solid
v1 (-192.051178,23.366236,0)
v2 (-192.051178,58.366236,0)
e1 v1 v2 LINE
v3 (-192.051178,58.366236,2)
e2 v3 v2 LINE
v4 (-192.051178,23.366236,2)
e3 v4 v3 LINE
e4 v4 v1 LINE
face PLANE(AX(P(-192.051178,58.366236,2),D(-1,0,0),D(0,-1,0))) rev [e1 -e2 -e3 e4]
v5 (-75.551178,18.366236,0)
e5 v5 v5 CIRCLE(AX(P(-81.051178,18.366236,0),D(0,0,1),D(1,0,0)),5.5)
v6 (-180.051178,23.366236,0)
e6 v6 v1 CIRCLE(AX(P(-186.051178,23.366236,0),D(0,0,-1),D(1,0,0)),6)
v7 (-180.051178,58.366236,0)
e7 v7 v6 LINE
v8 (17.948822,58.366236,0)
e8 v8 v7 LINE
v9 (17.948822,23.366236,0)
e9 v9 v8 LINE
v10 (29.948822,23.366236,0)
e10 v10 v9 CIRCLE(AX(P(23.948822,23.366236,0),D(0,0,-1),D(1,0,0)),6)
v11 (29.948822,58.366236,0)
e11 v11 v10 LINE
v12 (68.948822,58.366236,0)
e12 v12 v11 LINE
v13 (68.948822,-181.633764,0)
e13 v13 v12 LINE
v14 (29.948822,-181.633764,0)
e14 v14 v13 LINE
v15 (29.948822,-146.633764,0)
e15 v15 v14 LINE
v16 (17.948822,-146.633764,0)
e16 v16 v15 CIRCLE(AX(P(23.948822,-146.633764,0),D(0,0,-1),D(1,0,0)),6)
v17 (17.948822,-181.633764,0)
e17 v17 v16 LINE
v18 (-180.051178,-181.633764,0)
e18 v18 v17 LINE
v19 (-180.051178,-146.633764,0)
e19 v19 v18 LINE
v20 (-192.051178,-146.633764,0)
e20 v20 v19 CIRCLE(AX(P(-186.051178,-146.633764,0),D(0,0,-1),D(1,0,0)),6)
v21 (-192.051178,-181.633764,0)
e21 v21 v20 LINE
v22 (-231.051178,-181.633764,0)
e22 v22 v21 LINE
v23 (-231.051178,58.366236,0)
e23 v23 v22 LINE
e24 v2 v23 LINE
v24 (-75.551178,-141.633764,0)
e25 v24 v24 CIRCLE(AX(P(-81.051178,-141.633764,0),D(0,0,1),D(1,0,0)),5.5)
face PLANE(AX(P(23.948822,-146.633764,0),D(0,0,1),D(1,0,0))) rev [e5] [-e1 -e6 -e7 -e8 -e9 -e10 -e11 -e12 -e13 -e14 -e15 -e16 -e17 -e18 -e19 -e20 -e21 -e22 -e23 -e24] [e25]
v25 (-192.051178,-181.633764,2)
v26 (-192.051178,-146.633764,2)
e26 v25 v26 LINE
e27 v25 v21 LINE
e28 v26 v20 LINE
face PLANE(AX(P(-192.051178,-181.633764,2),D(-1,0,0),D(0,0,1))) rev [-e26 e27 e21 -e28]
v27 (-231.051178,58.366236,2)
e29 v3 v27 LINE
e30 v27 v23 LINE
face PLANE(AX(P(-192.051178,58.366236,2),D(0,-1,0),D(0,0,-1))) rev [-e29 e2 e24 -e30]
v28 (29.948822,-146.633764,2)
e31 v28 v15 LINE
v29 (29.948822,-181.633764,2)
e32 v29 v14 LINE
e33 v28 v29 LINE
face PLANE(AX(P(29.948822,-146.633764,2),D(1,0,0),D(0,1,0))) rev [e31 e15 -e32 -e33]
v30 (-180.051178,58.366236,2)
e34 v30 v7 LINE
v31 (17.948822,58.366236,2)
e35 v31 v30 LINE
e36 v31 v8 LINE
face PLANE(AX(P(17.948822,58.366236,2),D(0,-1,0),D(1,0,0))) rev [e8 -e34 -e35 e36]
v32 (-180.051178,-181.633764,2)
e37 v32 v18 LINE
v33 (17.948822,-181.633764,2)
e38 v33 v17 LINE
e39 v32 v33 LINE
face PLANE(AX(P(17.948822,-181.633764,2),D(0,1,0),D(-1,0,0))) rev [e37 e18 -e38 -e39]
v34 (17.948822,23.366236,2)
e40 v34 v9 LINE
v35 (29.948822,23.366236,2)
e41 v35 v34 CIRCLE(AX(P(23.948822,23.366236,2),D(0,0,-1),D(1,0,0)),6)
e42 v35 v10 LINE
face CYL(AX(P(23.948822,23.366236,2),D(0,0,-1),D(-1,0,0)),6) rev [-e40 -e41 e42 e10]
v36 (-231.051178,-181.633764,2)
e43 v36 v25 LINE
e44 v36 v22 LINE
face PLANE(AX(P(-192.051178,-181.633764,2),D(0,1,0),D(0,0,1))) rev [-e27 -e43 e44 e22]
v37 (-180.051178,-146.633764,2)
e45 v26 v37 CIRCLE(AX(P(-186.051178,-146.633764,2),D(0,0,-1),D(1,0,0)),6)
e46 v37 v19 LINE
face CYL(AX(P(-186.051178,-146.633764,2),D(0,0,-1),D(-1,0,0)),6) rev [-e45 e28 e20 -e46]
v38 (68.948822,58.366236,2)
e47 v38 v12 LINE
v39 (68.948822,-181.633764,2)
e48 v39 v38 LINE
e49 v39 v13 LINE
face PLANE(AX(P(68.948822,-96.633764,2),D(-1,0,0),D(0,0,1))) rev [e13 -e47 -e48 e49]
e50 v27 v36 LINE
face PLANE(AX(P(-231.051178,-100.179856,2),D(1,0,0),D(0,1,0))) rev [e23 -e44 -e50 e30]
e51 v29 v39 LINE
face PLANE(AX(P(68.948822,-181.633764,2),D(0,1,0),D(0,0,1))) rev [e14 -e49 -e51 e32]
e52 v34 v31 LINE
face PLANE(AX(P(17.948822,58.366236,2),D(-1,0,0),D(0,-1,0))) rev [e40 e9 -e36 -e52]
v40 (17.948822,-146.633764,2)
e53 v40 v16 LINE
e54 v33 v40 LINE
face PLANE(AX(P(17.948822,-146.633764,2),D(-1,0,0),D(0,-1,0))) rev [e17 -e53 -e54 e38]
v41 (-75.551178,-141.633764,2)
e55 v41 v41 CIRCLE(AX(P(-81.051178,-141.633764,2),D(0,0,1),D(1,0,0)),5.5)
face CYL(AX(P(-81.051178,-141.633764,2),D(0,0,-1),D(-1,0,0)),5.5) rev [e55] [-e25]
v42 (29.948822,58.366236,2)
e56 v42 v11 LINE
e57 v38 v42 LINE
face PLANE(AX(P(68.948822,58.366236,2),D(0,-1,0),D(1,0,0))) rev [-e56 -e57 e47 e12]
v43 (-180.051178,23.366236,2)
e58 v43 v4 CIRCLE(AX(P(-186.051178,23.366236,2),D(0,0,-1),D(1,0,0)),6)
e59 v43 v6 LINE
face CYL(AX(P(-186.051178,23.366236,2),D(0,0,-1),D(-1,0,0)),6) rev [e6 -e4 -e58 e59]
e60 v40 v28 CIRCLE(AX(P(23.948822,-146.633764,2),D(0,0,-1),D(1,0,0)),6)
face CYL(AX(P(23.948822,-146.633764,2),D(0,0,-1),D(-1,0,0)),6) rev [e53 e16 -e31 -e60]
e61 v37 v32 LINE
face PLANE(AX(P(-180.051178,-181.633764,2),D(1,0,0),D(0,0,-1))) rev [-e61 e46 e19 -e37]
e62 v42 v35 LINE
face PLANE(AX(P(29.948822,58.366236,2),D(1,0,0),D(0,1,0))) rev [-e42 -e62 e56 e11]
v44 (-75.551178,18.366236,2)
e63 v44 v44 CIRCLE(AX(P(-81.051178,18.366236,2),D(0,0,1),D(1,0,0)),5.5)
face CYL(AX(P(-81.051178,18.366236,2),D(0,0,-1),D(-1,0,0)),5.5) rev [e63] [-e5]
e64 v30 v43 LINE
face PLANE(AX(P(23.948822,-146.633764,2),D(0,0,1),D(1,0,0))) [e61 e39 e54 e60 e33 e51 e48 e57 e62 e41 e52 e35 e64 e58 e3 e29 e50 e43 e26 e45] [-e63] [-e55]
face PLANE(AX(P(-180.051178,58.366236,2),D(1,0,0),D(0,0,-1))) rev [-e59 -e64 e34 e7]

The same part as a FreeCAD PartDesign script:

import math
import FreeCAD as App
import Part
import Sketcher
from FreeCAD import Vector

doc = App.newDocument("Part")
params = doc.addObject("Spreadsheet::Sheet", "Params")
for row, (alias, value) in enumerate([
    ("sketch1_diameter", "11 mm"),
    ("sketch1_radius", "6 mm"),
    ("sketch1_diameter2", "6.5 mm"),
    ("sketch1_width", "30 mm"),
    ("sketch1_width2", "39 mm"),
    ("pad1_length", "2 mm"),
    ("sketch2_width", "30 mm"),
    ("sketch2_height", "70 mm"),
    ("sketch3_width", "30 mm"),
    ("sketch3_height", "70 mm"),
], start=1):
    params.set(f"A{row}", alias)
    params.set(f"B{row}", "=" + value)
    params.setAlias(f"B{row}", alias)

body = doc.addObject("PartDesign::Body", "Body")

# Sketch on XY plane
sketch1 = body.newObject("Sketcher::SketchObject", "Sketch")
sketch1.AttachmentSupport = (doc.getObject("XY_Plane"), [""])
sketch1.MapMode = "FlatFace"
sketch1.addGeometry(Part.LineSegment(Vector(98.9, -26.6, 0), Vector(68.9, -26.6, 0)), False)
sketch1.addGeometry(Part.LineSegment(Vector(68.9, -26.6, 0), Vector(68.9, 58.4, 0)), False)
sketch1.addGeometry(Part.LineSegment(Vector(68.9, 58.4, 0), Vector(29.9, 58.4, 0)), False)
sketch1.addGeometry(Part.LineSegment(Vector(29.9, 58.4, 0), Vector(29.9, 23.4, 0)), False)
sketch1.addGeometry(Part.ArcOfCircle(Part.Circle(Vector(23.9, 23.4, 0), Vector(0, 0, 1), 6), math.radians(180), math.radians(360)), False)
sketch1.addGeometry(Part.LineSegment(Vector(17.9, 23.4, 0), Vector(17.9, 58.4, 0)), False)
sketch1.addGeometry(Part.LineSegment(Vector(17.9, 58.4, 0), Vector(-180.1, 58.4, 0)), False)
sketch1.addGeometry(Part.LineSegment(Vector(-180.1, 58.4, 0), Vector(-180.1, 23.4, 0)), False)
sketch1.addGeometry(Part.ArcOfCircle(Part.Circle(Vector(-186.1, 23.4, 0), Vector(0, 0, 1), 6), math.radians(180), math.radians(360)), False)
sketch1.addGeometry(Part.LineSegment(Vector(-192.1, 23.4, 0), Vector(-192.1, 58.4, 0)), False)
sketch1.addGeometry(Part.LineSegment(Vector(-192.1, 58.4, 0), Vector(-231.1, 58.4, 0)), False)
sketch1.addGeometry(Part.LineSegment(Vector(-231.1, 58.4, 0), Vector(-231.1, -30.2, 0)), False)
sketch1.addGeometry(Part.LineSegment(Vector(-231.1, -30.2, 0), Vector(-261.1, -30.2, 0)), False)
sketch1.addGeometry(Part.LineSegment(Vector(-261.1, -30.2, 0), Vector(-261.1, -100.2, 0)), False)
sketch1.addGeometry(Part.LineSegment(Vector(-261.1, -100.2, 0), Vector(-231.1, -100.2, 0)), False)
sketch1.addGeometry(Part.LineSegment(Vector(-231.1, -100.2, 0), Vector(-231.1, -181.6, 0)), False)
sketch1.addGeometry(Part.LineSegment(Vector(-231.1, -181.6, 0), Vector(-192.1, -181.6, 0)), False)
sketch1.addGeometry(Part.LineSegment(Vector(-192.1, -181.6, 0), Vector(-192.1, -146.6, 0)), False)
sketch1.addGeometry(Part.ArcOfCircle(Part.Circle(Vector(-186.1, -146.6, 0), Vector(0, 0, 1), 6), math.radians(0), math.radians(180)), False)
sketch1.addGeometry(Part.LineSegment(Vector(-180.1, -146.6, 0), Vector(-180.1, -181.6, 0)), False)
sketch1.addGeometry(Part.LineSegment(Vector(-180.1, -181.6, 0), Vector(17.9, -181.6, 0)), False)
sketch1.addGeometry(Part.LineSegment(Vector(17.9, -181.6, 0), Vector(17.9, -146.6, 0)), False)
sketch1.addGeometry(Part.ArcOfCircle(Part.Circle(Vector(23.9, -146.6, 0), Vector(0, 0, 1), 6), math.radians(0), math.radians(180)), False)
sketch1.addGeometry(Part.LineSegment(Vector(29.9, -146.6, 0), Vector(29.9, -181.6, 0)), False)
sketch1.addGeometry(Part.LineSegment(Vector(29.9, -181.6, 0), Vector(68.9, -181.6, 0)), False)
sketch1.addGeometry(Part.LineSegment(Vector(68.9, -181.6, 0), Vector(68.9, -96.6, 0)), False)
sketch1.addGeometry(Part.LineSegment(Vector(68.9, -96.6, 0), Vector(98.9, -96.6, 0)), False)
sketch1.addGeometry(Part.LineSegment(Vector(98.9, -96.6, 0), Vector(98.9, -26.6, 0)), False)
sketch1.addGeometry(Part.Circle(Vector(-81.1, -141.6, 0), Vector(0, 0, 1), 5.5), False)
sketch1.addGeometry(Part.Circle(Vector(-246.1, -65.2, 0), Vector(0, 0, 1), 3.2), False)
sketch1.addGeometry(Part.Circle(Vector(83.9, -61.6, 0), Vector(0, 0, 1), 3.2), False)
sketch1.addGeometry(Part.Circle(Vector(-81.1, 18.4, 0), Vector(0, 0, 1), 5.5), False)
sketch1.addConstraint(Sketcher.Constraint("Coincident", 0, 2, 1, 1))
sketch1.addConstraint(Sketcher.Constraint("Coincident", 1, 2, 2, 1))
sketch1.addConstraint(Sketcher.Constraint("Coincident", 2, 2, 3, 1))
sketch1.addConstraint(Sketcher.Constraint("Tangent", 3, 2, 4, 2))
sketch1.addConstraint(Sketcher.Constraint("Tangent", 4, 1, 5, 1))
sketch1.addConstraint(Sketcher.Constraint("Coincident", 5, 2, 6, 1))
sketch1.addConstraint(Sketcher.Constraint("Coincident", 6, 2, 7, 1))
sketch1.addConstraint(Sketcher.Constraint("Tangent", 7, 2, 8, 2))
sketch1.addConstraint(Sketcher.Constraint("Tangent", 8, 1, 9, 1))
sketch1.addConstraint(Sketcher.Constraint("Coincident", 9, 2, 10, 1))
sketch1.addConstraint(Sketcher.Constraint("Coincident", 10, 2, 11, 1))
sketch1.addConstraint(Sketcher.Constraint("Coincident", 11, 2, 12, 1))
sketch1.addConstraint(Sketcher.Constraint("Coincident", 12, 2, 13, 1))
sketch1.addConstraint(Sketcher.Constraint("Coincident", 13, 2, 14, 1))
sketch1.addConstraint(Sketcher.Constraint("Coincident", 14, 2, 15, 1))
sketch1.addConstraint(Sketcher.Constraint("Coincident", 15, 2, 16, 1))
sketch1.addConstraint(Sketcher.Constraint("Coincident", 16, 2, 17, 1))
sketch1.addConstraint(Sketcher.Constraint("Tangent", 17, 2, 18, 2))
sketch1.addConstraint(Sketcher.Constraint("Tangent", 18, 1, 19, 1))
sketch1.addConstraint(Sketcher.Constraint("Coincident", 19, 2, 20, 1))
sketch1.addConstraint(Sketcher.Constraint("Coincident", 20, 2, 21, 1))
sketch1.addConstraint(Sketcher.Constraint("Tangent", 21, 2, 22, 2))
sketch1.addConstraint(Sketcher.Constraint("Tangent", 22, 1, 23, 1))
sketch1.addConstraint(Sketcher.Constraint("Coincident", 23, 2, 24, 1))
sketch1.addConstraint(Sketcher.Constraint("Coincident", 24, 2, 25, 1))
sketch1.addConstraint(Sketcher.Constraint("Coincident", 25, 2, 26, 1))
sketch1.addConstraint(Sketcher.Constraint("Coincident", 26, 2, 27, 1))
sketch1.addConstraint(Sketcher.Constraint("Coincident", 27, 2, 0, 1))
sketch1.addConstraint(Sketcher.Constraint("Horizontal", 0))
sketch1.addConstraint(Sketcher.Constraint("Vertical", 1))
sketch1.addConstraint(Sketcher.Constraint("Horizontal", 2))
sketch1.addConstraint(Sketcher.Constraint("Vertical", 3))
sketch1.addConstraint(Sketcher.Constraint("Vertical", 5))
sketch1.addConstraint(Sketcher.Constraint("Horizontal", 6))
sketch1.addConstraint(Sketcher.Constraint("Vertical", 7))
sketch1.addConstraint(Sketcher.Constraint("Vertical", 9))
sketch1.addConstraint(Sketcher.Constraint("Horizontal", 10))
sketch1.addConstraint(Sketcher.Constraint("Vertical", 11))
sketch1.addConstraint(Sketcher.Constraint("Horizontal", 12))
sketch1.addConstraint(Sketcher.Constraint("Vertical", 13))
sketch1.addConstraint(Sketcher.Constraint("Horizontal", 14))
sketch1.addConstraint(Sketcher.Constraint("Vertical", 15))
sketch1.addConstraint(Sketcher.Constraint("Horizontal", 16))
sketch1.addConstraint(Sketcher.Constraint("Vertical", 17))
sketch1.addConstraint(Sketcher.Constraint("Vertical", 19))
sketch1.addConstraint(Sketcher.Constraint("Horizontal", 20))
sketch1.addConstraint(Sketcher.Constraint("Vertical", 21))
sketch1.addConstraint(Sketcher.Constraint("Vertical", 23))
sketch1.addConstraint(Sketcher.Constraint("Horizontal", 24))
sketch1.addConstraint(Sketcher.Constraint("Vertical", 25))
sketch1.addConstraint(Sketcher.Constraint("Horizontal", 26))
sketch1.addConstraint(Sketcher.Constraint("Vertical", 27))
sketch1.addConstraint(Sketcher.Constraint("Equal", 4, 8))
sketch1.addConstraint(Sketcher.Constraint("Equal", 8, 18))
sketch1.addConstraint(Sketcher.Constraint("Equal", 18, 22))
sketch1.addConstraint(Sketcher.Constraint("Equal", 29, 30))
sketch1.addConstraint(Sketcher.Constraint("Equal", 28, 31))
sketch1.addConstraint(Sketcher.Constraint("Horizontal", 4, 3, 8, 3))
sketch1.addConstraint(Sketcher.Constraint("Horizontal", 18, 3, 22, 3))
sketch1.addConstraint(Sketcher.Constraint("Horizontal", 2, 2, 5, 2))
sketch1.addConstraint(Sketcher.Constraint("Horizontal", 6, 2, 9, 2))
sketch1.addConstraint(Sketcher.Constraint("Horizontal", 16, 2, 19, 2))
sketch1.addConstraint(Sketcher.Constraint("Horizontal", 20, 2, 23, 2))
sketch1.addConstraint(Sketcher.Constraint("Vertical", 8, 3, 18, 3))
sketch1.addConstraint(Sketcher.Constraint("Vertical", 4, 3, 22, 3))
sketch1.addConstraint(Sketcher.Constraint("Vertical", 28, 3, 31, 3))
sketch1.addConstraint(Sketcher.Constraint("Vertical", 11, 2, 14, 2))
sketch1.addConstraint(Sketcher.Constraint("Vertical", 1, 2, 24, 2))
sketch1.addConstraint(Sketcher.Constraint("Equal", 2, 10))
sketch1.addConstraint(Sketcher.Constraint("Equal", 0, 12))
sketch1.addConstraint(Sketcher.Constraint("Equal", 9, 17))
sketch1.addConstraint(Sketcher.Constraint("Equal", 1, 25))
sketch1.addConstraint(Sketcher.Constraint("Equal", 13, 27))
sketch1.addConstraint(Sketcher.Constraint("Diameter", 28, 11.0))
sketch1.addConstraint(Sketcher.Constraint("Radius", 4, 6.0))
sketch1.addConstraint(Sketcher.Constraint("Diameter", 29, 6.5))
sketch1.addConstraint(Sketcher.Constraint("DistanceX", 0, 2, 0, 1, 30.0))
sketch1.addConstraint(Sketcher.Constraint("DistanceX", 2, 2, 2, 1, 39.0))
sketch1.addConstraint(Sketcher.Constraint("DistanceX", 6, 2, 6, 1, 198.0))
sketch1.addConstraint(Sketcher.Constraint("DistanceY", 1, 1, 1, 2, 85.0))
sketch1.addConstraint(Sketcher.Constraint("DistanceY", 3, 2, 3, 1, 35.0))
sketch1.addConstraint(Sketcher.Constraint("DistanceY", 13, 2, 13, 1, 70.0))
sketch1.addConstraint(Sketcher.Constraint("DistanceX", 18, 3, 28, 3, 105.0))
sketch1.addConstraint(Sketcher.Constraint("DistanceY", 18, 3, 28, 3, 5.0))
sketch1.addConstraint(Sketcher.Constraint("DistanceX", 29, 3, 18, 3, 60.0))
sketch1.addConstraint(Sketcher.Constraint("DistanceX", 4, 3, 30, 3, 60.0))
sketch1.addConstraint(Sketcher.Constraint("DistanceY", 30, 3, 4, 3, 85.0))
sketch1.addConstraint(Sketcher.Constraint("DistanceY", 31, 3, 4, 3, 5.0))
sketch1.addConstraint(Sketcher.Constraint("DistanceY", 29, 3, 11, 2, 35.0))
sketch1.addConstraint(Sketcher.Constraint("DistanceY", 11, 2, 11, 1, 88.546092))
sketch1.addConstraint(Sketcher.Constraint("DistanceX", -1, 1, 4, 3, 23.948822))
sketch1.addConstraint(Sketcher.Constraint("DistanceY", -1, 1, 4, 3, 23.366236))
sketch1.setExpression("Constraints[73]", "Params.sketch1_diameter")
sketch1.setExpression("Constraints[74]", "Params.sketch1_radius")
sketch1.setExpression("Constraints[75]", "Params.sketch1_diameter2")
sketch1.setExpression("Constraints[76]", "Params.sketch1_width")
sketch1.setExpression("Constraints[77]", "Params.sketch1_width2")
pad1 = body.newObject("PartDesign::Pad", "Pad")
pad1.Profile = sketch1
pad1.setExpression("Length", "Params.pad1_length")

# Sketch on XY plane
sketch2 = body.newObject("Sketcher::SketchObject", "Sketch001")
sketch2.AttachmentSupport = (doc.getObject("XY_Plane"), [""])
sketch2.MapMode = "FlatFace"
sketch2.AttachmentOffset = App.Placement(Vector(0, 0, 2), App.Rotation())
sketch2.addGeometry(Part.LineSegment(Vector(69, -27, 0), Vector(69, -97, 0)), False)
sketch2.addGeometry(Part.LineSegment(Vector(69, -97, 0), Vector(99, -97, 0)), False)
sketch2.addGeometry(Part.LineSegment(Vector(99, -97, 0), Vector(99, -27, 0)), False)
sketch2.addGeometry(Part.LineSegment(Vector(99, -27, 0), Vector(69, -27, 0)), False)
sketch2.addConstraint(Sketcher.Constraint("Coincident", 0, 2, 1, 1))
sketch2.addConstraint(Sketcher.Constraint("Coincident", 1, 2, 2, 1))
sketch2.addConstraint(Sketcher.Constraint("Coincident", 2, 2, 3, 1))
sketch2.addConstraint(Sketcher.Constraint("Coincident", 3, 2, 0, 1))
sketch2.addConstraint(Sketcher.Constraint("Vertical", 0))
sketch2.addConstraint(Sketcher.Constraint("Horizontal", 1))
sketch2.addConstraint(Sketcher.Constraint("Vertical", 2))
sketch2.addConstraint(Sketcher.Constraint("Horizontal", 3))
sketch2.addConstraint(Sketcher.Constraint("DistanceX", 1, 1, 1, 2, 30.0))
sketch2.addConstraint(Sketcher.Constraint("DistanceY", 0, 2, 0, 1, 70.0))
sketch2.addConstraint(Sketcher.Constraint("DistanceX", -1, 1, 0, 2, 68.948822))
sketch2.addConstraint(Sketcher.Constraint("DistanceY", 0, 2, -1, 1, 96.633764))
sketch2.setExpression("Constraints[8]", "Params.sketch2_width")
sketch2.setExpression("Constraints[9]", "Params.sketch2_height")
pocket1 = body.newObject("PartDesign::Pocket", "Pocket")
pocket1.Profile = sketch2
pocket1.Type = "ThroughAll"
pocket1.Midplane = True

# Sketch on XY plane
sketch3 = body.newObject("Sketcher::SketchObject", "Sketch002")
sketch3.AttachmentSupport = (doc.getObject("XY_Plane"), [""])
sketch3.MapMode = "FlatFace"
sketch3.AttachmentOffset = App.Placement(Vector(0, 0, 2), App.Rotation())
sketch3.addGeometry(Part.LineSegment(Vector(-261, -30, 0), Vector(-261, -100, 0)), False)
sketch3.addGeometry(Part.LineSegment(Vector(-261, -100, 0), Vector(-231, -100, 0)), False)
sketch3.addGeometry(Part.LineSegment(Vector(-231, -100, 0), Vector(-231, -30, 0)), False)
sketch3.addGeometry(Part.LineSegment(Vector(-231, -30, 0), Vector(-261, -30, 0)), False)
sketch3.addConstraint(Sketcher.Constraint("Coincident", 0, 2, 1, 1))
sketch3.addConstraint(Sketcher.Constraint("Coincident", 1, 2, 2, 1))
sketch3.addConstraint(Sketcher.Constraint("Coincident", 2, 2, 3, 1))
sketch3.addConstraint(Sketcher.Constraint("Coincident", 3, 2, 0, 1))
sketch3.addConstraint(Sketcher.Constraint("Vertical", 0))
sketch3.addConstraint(Sketcher.Constraint("Horizontal", 1))
sketch3.addConstraint(Sketcher.Constraint("Vertical", 2))
sketch3.addConstraint(Sketcher.Constraint("Horizontal", 3))
sketch3.addConstraint(Sketcher.Constraint("DistanceX", 1, 1, 1, 2, 30.0))
sketch3.addConstraint(Sketcher.Constraint("DistanceY", 0, 2, 0, 1, 70.0))
sketch3.addConstraint(Sketcher.Constraint("DistanceX", 0, 2, -1, 1, 261.051178))
sketch3.addConstraint(Sketcher.Constraint("DistanceY", 0, 2, -1, 1, 100.179856))
sketch3.setExpression("Constraints[8]", "Params.sketch3_width")
sketch3.setExpression("Constraints[9]", "Params.sketch3_height")
pocket2 = body.newObject("PartDesign::Pocket", "Pocket001")
pocket2.Profile = sketch3
pocket2.Type = "ThroughAll"
pocket2.Midplane = True

doc.recompute()
